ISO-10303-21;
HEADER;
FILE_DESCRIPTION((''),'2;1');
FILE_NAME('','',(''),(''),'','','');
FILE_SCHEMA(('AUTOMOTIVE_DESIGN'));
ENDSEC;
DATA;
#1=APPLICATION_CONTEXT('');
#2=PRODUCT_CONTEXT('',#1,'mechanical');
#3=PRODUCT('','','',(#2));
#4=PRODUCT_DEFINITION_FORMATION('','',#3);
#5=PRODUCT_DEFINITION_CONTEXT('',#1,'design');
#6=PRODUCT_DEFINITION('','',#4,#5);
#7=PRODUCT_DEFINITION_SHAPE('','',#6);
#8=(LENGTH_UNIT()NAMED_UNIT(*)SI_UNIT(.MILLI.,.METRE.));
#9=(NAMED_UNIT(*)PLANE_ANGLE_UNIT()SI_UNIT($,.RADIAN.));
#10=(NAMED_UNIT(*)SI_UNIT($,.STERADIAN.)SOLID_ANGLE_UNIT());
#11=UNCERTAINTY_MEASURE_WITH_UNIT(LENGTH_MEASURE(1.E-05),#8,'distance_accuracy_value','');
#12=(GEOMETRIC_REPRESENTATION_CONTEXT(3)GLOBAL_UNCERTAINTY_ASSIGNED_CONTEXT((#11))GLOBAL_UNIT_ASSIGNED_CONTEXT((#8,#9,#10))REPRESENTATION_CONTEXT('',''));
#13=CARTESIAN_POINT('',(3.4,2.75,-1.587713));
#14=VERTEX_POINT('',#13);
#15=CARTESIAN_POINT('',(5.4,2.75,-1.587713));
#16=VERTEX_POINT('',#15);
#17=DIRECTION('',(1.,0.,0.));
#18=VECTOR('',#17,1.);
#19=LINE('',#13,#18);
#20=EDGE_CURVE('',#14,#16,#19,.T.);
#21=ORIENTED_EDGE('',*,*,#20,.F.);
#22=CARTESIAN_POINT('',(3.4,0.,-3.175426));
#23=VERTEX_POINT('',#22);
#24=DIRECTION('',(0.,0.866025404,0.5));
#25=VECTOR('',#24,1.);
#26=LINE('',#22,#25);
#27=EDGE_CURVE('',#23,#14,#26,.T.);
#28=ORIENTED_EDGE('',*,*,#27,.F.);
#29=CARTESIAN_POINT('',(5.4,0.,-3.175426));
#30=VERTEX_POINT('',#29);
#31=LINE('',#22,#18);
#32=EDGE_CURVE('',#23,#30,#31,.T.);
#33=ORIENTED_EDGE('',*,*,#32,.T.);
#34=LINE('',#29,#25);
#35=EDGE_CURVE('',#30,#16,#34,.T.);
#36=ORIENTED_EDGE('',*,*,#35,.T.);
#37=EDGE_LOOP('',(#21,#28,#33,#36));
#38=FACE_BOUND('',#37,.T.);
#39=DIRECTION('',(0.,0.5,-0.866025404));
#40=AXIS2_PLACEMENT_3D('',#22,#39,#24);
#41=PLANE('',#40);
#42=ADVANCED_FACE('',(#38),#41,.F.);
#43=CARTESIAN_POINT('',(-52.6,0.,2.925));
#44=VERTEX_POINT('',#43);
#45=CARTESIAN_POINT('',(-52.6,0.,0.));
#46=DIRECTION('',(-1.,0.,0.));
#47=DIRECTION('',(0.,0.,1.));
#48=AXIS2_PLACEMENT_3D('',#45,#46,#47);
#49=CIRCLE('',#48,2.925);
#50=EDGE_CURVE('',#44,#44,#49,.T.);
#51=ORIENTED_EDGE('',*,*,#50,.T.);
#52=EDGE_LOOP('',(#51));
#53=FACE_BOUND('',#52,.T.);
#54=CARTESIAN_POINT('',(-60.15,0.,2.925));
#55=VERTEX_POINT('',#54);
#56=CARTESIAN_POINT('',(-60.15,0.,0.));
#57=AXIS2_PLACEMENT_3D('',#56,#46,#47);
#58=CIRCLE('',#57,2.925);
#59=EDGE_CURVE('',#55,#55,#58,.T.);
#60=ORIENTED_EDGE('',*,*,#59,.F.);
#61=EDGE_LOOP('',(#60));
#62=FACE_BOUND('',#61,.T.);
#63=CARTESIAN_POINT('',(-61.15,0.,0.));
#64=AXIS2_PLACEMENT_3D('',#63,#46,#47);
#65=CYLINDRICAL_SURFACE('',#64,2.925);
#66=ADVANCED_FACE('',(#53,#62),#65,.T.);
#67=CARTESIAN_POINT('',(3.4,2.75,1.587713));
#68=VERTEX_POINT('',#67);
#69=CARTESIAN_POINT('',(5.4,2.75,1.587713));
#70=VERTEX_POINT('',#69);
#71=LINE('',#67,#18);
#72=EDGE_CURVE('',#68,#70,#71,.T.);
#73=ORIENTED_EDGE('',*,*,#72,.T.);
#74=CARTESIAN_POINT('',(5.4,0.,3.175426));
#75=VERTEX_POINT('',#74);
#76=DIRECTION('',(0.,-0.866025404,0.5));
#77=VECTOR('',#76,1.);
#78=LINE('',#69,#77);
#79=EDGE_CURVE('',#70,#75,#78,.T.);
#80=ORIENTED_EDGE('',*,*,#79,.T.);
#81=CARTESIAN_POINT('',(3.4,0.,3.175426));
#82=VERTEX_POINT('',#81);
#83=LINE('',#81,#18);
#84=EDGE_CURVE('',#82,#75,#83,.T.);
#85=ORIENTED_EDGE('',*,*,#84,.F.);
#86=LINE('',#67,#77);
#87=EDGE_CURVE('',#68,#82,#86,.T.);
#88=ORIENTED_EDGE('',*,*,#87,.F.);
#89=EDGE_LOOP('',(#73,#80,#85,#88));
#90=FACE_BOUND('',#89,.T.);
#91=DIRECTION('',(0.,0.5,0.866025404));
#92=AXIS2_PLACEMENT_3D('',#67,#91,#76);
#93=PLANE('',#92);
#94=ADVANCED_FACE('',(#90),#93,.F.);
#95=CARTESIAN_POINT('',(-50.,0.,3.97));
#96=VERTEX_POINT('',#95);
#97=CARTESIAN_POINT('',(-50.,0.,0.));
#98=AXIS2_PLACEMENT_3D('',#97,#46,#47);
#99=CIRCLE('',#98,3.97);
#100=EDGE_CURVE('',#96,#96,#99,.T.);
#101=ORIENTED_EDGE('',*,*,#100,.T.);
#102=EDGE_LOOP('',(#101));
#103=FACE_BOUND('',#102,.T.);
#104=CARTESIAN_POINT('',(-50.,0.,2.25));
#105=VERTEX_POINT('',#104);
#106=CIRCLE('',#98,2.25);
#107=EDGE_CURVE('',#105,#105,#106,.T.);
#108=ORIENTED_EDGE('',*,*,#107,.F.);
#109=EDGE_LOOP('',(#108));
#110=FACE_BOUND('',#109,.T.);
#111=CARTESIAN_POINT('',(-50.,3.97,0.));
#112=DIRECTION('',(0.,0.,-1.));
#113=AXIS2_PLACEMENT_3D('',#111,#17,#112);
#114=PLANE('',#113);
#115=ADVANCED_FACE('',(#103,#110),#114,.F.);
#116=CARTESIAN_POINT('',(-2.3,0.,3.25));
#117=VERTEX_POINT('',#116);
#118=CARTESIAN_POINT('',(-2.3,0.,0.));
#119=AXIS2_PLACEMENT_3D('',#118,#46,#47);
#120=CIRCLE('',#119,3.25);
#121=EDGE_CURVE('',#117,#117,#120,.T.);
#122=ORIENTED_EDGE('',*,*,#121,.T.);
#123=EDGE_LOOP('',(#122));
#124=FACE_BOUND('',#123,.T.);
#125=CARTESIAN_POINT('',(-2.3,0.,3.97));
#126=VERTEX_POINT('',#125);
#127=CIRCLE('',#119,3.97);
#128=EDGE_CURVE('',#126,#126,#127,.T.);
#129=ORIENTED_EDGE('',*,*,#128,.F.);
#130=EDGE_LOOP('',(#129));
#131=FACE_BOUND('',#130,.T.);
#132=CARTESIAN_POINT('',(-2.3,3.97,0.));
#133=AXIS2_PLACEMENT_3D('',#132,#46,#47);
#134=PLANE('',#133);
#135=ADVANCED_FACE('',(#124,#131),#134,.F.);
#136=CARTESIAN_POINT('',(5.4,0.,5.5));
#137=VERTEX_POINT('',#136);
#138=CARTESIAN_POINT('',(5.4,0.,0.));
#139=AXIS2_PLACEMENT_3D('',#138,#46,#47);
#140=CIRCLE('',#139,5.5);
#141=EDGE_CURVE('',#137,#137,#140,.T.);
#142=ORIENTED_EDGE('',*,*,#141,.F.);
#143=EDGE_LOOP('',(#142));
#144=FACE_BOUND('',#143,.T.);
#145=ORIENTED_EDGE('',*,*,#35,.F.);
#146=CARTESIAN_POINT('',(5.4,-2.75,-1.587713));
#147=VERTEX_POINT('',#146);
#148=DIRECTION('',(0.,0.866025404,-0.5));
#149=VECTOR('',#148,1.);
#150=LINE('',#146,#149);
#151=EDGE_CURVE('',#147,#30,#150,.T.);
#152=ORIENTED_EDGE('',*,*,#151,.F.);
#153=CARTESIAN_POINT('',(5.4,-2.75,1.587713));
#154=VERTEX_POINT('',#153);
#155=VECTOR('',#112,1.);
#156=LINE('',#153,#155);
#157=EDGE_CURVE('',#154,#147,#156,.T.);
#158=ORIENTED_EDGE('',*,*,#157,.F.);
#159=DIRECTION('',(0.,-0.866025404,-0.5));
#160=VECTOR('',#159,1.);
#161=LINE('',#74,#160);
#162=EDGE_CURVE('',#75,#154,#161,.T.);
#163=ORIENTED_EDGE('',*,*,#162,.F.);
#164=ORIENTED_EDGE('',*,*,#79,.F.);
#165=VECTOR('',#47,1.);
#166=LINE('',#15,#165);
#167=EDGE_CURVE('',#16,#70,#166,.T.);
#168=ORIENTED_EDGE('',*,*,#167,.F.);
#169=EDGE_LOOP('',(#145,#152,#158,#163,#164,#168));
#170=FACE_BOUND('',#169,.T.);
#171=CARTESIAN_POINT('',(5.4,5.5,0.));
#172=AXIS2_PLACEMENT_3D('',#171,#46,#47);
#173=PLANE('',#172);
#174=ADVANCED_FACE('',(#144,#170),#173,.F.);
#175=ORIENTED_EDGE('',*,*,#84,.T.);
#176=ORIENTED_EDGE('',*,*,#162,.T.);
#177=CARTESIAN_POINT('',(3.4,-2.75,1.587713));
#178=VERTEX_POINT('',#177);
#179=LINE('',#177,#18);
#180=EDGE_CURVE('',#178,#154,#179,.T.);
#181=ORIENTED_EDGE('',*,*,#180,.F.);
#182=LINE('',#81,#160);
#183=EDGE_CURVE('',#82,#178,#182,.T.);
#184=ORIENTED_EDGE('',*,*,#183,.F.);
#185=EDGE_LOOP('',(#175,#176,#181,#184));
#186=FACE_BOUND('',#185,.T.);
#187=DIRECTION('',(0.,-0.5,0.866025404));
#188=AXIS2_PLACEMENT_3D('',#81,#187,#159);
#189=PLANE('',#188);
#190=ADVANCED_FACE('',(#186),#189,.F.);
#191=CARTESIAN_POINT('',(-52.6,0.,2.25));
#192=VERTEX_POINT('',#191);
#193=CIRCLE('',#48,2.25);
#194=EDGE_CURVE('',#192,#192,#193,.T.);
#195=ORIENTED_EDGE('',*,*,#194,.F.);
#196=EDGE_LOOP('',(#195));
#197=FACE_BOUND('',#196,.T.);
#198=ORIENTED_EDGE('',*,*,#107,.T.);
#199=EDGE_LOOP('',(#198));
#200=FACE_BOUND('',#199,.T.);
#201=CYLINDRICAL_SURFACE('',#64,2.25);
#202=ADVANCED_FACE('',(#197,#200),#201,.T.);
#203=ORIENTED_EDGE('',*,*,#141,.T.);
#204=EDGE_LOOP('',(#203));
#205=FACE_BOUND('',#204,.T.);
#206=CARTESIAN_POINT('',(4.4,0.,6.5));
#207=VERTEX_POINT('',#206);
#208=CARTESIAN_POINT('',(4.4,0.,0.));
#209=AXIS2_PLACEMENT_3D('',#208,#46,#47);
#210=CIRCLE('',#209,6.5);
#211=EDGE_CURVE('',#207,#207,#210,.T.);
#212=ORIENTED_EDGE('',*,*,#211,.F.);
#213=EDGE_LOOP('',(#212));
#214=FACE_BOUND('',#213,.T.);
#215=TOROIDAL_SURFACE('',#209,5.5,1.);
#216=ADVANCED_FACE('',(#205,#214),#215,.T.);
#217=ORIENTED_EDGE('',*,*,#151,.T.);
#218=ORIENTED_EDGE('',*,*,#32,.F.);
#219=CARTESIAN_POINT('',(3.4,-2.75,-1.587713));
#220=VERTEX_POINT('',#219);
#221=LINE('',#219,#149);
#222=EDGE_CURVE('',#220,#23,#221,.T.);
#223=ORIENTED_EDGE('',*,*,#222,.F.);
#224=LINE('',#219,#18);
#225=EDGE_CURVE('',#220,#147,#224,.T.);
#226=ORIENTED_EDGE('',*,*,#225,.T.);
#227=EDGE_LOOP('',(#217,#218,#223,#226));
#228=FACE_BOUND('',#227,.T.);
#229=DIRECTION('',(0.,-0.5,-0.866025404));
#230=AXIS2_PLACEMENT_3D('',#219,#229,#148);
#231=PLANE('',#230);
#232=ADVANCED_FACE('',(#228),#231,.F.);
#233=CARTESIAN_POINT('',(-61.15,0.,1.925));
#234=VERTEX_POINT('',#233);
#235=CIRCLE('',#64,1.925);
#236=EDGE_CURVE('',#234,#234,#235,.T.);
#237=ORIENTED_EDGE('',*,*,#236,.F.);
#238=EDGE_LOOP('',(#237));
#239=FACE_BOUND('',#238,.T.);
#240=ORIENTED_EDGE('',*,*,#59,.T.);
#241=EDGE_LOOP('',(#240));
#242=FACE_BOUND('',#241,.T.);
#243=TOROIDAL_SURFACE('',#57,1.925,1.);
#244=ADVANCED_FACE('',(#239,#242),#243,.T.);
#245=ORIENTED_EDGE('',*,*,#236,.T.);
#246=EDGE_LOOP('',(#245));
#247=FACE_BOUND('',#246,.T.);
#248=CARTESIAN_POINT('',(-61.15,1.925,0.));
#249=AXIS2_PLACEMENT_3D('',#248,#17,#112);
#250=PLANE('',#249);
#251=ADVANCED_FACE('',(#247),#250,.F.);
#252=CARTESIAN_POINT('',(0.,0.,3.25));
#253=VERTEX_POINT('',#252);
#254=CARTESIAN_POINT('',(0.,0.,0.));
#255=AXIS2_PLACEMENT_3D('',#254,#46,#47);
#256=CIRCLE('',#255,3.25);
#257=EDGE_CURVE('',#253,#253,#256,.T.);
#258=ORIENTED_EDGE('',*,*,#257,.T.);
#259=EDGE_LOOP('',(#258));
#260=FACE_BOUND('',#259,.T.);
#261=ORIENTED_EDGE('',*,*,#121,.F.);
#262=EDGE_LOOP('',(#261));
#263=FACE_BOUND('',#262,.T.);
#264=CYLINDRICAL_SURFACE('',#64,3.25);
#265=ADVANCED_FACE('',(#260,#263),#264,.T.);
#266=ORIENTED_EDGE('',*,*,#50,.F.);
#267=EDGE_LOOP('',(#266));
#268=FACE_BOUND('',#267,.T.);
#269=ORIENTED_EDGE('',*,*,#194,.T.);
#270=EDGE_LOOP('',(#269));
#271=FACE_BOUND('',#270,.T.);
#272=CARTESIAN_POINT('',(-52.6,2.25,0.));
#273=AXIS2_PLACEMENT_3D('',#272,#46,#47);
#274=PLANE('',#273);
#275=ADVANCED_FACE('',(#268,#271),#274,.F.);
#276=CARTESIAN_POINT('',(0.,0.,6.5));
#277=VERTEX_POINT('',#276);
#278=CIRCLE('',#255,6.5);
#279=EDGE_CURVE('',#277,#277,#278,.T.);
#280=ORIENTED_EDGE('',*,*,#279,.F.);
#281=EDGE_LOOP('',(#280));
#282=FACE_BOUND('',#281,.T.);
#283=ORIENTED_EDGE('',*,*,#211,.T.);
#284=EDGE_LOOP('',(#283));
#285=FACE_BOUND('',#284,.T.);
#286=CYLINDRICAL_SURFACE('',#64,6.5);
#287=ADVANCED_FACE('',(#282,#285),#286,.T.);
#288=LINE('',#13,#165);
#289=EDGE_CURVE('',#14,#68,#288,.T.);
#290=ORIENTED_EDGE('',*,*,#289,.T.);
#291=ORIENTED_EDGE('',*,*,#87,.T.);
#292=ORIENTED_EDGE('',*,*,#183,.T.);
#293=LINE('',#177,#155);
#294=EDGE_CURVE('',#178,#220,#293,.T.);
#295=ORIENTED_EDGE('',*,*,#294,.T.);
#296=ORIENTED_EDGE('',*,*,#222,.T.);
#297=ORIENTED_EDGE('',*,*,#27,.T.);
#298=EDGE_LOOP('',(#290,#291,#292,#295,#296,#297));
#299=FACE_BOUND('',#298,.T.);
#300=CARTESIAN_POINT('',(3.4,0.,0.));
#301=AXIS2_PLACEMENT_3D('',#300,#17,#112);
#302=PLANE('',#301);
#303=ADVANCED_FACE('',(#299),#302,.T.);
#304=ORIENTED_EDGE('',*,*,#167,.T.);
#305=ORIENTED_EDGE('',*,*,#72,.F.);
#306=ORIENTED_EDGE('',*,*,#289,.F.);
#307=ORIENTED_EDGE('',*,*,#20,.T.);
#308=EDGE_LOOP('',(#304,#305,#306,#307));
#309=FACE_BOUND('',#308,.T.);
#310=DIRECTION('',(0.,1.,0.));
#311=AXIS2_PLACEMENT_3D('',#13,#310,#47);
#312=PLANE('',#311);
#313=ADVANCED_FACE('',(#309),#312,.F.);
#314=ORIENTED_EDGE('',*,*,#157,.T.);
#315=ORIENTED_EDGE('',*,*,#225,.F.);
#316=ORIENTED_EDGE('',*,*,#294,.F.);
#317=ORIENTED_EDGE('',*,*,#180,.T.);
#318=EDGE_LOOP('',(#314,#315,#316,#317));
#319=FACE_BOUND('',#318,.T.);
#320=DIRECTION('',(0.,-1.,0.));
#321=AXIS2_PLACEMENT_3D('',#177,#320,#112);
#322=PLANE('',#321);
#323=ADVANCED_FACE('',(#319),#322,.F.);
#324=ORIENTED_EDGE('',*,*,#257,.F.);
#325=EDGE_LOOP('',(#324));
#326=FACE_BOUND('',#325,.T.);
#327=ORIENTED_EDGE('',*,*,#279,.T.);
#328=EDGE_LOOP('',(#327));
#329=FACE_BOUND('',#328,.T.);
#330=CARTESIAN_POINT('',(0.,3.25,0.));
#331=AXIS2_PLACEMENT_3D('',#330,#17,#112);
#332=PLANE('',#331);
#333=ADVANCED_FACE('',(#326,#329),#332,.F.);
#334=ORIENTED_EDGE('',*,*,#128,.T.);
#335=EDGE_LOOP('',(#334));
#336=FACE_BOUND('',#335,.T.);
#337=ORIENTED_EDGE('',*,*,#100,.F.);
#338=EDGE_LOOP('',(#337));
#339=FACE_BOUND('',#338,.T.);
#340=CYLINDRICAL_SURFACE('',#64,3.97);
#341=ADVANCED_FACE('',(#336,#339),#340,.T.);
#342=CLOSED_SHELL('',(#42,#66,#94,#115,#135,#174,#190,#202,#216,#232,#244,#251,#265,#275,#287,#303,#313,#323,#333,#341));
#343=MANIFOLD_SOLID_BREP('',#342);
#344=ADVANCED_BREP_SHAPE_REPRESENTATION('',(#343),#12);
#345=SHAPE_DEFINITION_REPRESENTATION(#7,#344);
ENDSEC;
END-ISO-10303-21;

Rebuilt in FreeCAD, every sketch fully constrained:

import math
import FreeCAD as App
import Part
import Sketcher
Q = App.Units.Quantity


def add_polygon(sketch, points):
    """Adds a closed chain of lines whose ends are joined by coincident constraints."""
    first, n = sketch.GeometryCount, len(points)
    for a, b in zip(points, points[1:] + points[:1]):
        sketch.addGeometry(Part.LineSegment(App.Vector(*a, 0), App.Vector(*b, 0)), False)
    for i in range(n):
        sketch.addConstraint(Sketcher.Constraint("Coincident", first + i, 2, first + (i + 1) % n, 1))

doc = App.newDocument("Part")
body = doc.addObject("PartDesign::Body", "Body")

sketch1 = body.newObject("Sketcher::SketchObject", "Sketch")
sketch1.AttachmentSupport = (doc.getObject("XY_Plane"), [""])
sketch1.MapMode = "FlatFace"
sketch1.addGeometry([
    Part.LineSegment(App.Vector(-2.3, 4, 0), App.Vector(-50, 4, 0)),
    Part.LineSegment(App.Vector(-50, 4, 0), App.Vector(-50, 2.2, 0)),
    Part.LineSegment(App.Vector(-50, 2.2, 0), App.Vector(-52.6, 2.2, 0)),
    Part.LineSegment(App.Vector(-52.6, 2.2, 0), App.Vector(-52.6, 2.9, 0)),
    Part.LineSegment(App.Vector(-52.6, 2.9, 0), App.Vector(-60.1, 2.9, 0)),
    Part.ArcOfCircle(Part.Circle(App.Vector(-60.1, 1.9, 0), App.Vector(0, 0, 1), 1), math.radians(90), math.radians(180)),
    Part.LineSegment(App.Vector(-61.1, 1.9, 0), App.Vector(-61.1, 0, 0)),
    Part.LineSegment(App.Vector(-61.1, 0, 0), App.Vector(5.4, 0, 0)),
    Part.LineSegment(App.Vector(5.4, 0, 0), App.Vector(5.4, 5.5, 0)),
    Part.ArcOfCircle(Part.Circle(App.Vector(4.4, 5.5, 0), App.Vector(0, 0, 1), 1), math.radians(0), math.radians(90)),
    Part.LineSegment(App.Vector(4.4, 6.5, 0), App.Vector(0, 6.5, 0)),
    Part.LineSegment(App.Vector(0, 6.5, 0), App.Vector(0, 3.2, 0)),
    Part.LineSegment(App.Vector(0, 3.2, 0), App.Vector(-2.3, 3.2, 0)),
    Part.LineSegment(App.Vector(-2.3, 3.2, 0), App.Vector(-2.3, 4, 0)),
], False)
sketch1.addConstraint([
    Sketcher.Constraint("Coincident", 0, 2, 1, 1),
    Sketcher.Constraint("Coincident", 1, 2, 2, 1),
    Sketcher.Constraint("Coincident", 2, 2, 3, 1),
    Sketcher.Constraint("Coincident", 3, 2, 4, 1),
    Sketcher.Constraint("Tangent", 4, 2, 5, 1),
    Sketcher.Constraint("Tangent", 5, 2, 6, 1),
    Sketcher.Constraint("Coincident", 6, 2, 7, 1),
    Sketcher.Constraint("Coincident", 7, 2, 8, 1),
    Sketcher.Constraint("Tangent", 8, 2, 9, 1),
    Sketcher.Constraint("Tangent", 9, 2, 10, 1),
    Sketcher.Constraint("Coincident", 10, 2, 11, 1),
    Sketcher.Constraint("Coincident", 11, 2, 12, 1),
    Sketcher.Constraint("Coincident", 12, 2, 13, 1),
    Sketcher.Constraint("Coincident", 13, 2, 0, 1),
    Sketcher.Constraint("Horizontal", 0),
    Sketcher.Constraint("Vertical", 1),
    Sketcher.Constraint("Horizontal", 2),
    Sketcher.Constraint("Vertical", 3),
    Sketcher.Constraint("Horizontal", 4),
    Sketcher.Constraint("Vertical", 6),
    Sketcher.Constraint("Horizontal", 7),
    Sketcher.Constraint("Vertical", 8),
    Sketcher.Constraint("Horizontal", 10),
    Sketcher.Constraint("Vertical", 11),
    Sketcher.Constraint("Horizontal", 12),
    Sketcher.Constraint("Vertical", 13),
    Sketcher.Constraint("Equal", 5, 9),
    Sketcher.Constraint("PointOnObject", 6, 2, -1),
    Sketcher.Constraint("PointOnObject", 10, 2, -2),
    Sketcher.Constraint("Radius", 5, Q("1 mm")),
    Sketcher.Constraint("DistanceX", 0, 2, 0, 1, Q("47.7 mm")),
    Sketcher.Constraint("DistanceX", 2, 2, 2, 1, Q("2.6 mm")),
    Sketcher.Constraint("DistanceX", 10, 2, 10, 1, Q("4.4 mm")),
    Sketcher.Constraint("DistanceX", 12, 2, 12, 1, Q("2.3 mm")),
    Sketcher.Constraint("DistanceY", 8, 1, 8, 2, Q("5.5 mm")),
    Sketcher.Constraint("DistanceX", 4, 2, 4, 1, Q("7.55 mm")),
    Sketcher.Constraint("DistanceY", 1, 2, 1, 1, Q("1.72 mm")),
    Sketcher.Constraint("DistanceY", 11, 2, 11, 1, Q("3.25 mm")),
    Sketcher.Constraint("DistanceY", 13, 1, 13, 2, Q("0.72 mm")),
    Sketcher.Constraint("DistanceY", 3, 1, 3, 2, Q("0.675 mm")),
])
revolution = body.newObject("PartDesign::Revolution", "Revolution")
revolution.Profile = sketch1
revolution.ReferenceAxis = (sketch1, ["H_Axis"])
revolution.Angle = 360

sketch2 = body.newObject("Sketcher::SketchObject", "Sketch001")
sketch2.AttachmentSupport = (doc.getObject("YZ_Plane"), [""])
sketch2.MapMode = "FlatFace"
sketch2.AttachmentOffset = App.Placement(App.Vector(0, 0, 5.4), App.Rotation())
add_polygon(sketch2, [(2.8, -1.6), (2.8, 1.6), (0, 3.2), (-2.8, 1.6), (-2.8, -1.6), (0, -3.2)])
sketch2.addConstraint([
    Sketcher.Constraint("Vertical", 0),
    Sketcher.Constraint("Vertical", 3),
    Sketcher.Constraint("Symmetric", 0, 2, 3, 2, -1, 1),
    Sketcher.Constraint("Symmetric", 1, 2, 4, 2, -1, 1),
    Sketcher.Constraint("PointOnObject", 1, 2, -2),
    Sketcher.Constraint("Parallel", 2, 5),
    Sketcher.Constraint("Horizontal", 0, 2, 2, 2),
    Sketcher.Constraint("Angle", 1, Q("150 deg")),
    Sketcher.Constraint("DistanceX", 2, 2, 0, 2, Q("5.5 mm")),
    Sketcher.Constraint("DistanceY", 0, 1, 0, 2, Q("3.175426 mm")),
])
pocket1 = body.newObject("PartDesign::Pocket", "Pocket")
pocket1.Profile = sketch2
pocket1.Length = 2

doc.recompute()
